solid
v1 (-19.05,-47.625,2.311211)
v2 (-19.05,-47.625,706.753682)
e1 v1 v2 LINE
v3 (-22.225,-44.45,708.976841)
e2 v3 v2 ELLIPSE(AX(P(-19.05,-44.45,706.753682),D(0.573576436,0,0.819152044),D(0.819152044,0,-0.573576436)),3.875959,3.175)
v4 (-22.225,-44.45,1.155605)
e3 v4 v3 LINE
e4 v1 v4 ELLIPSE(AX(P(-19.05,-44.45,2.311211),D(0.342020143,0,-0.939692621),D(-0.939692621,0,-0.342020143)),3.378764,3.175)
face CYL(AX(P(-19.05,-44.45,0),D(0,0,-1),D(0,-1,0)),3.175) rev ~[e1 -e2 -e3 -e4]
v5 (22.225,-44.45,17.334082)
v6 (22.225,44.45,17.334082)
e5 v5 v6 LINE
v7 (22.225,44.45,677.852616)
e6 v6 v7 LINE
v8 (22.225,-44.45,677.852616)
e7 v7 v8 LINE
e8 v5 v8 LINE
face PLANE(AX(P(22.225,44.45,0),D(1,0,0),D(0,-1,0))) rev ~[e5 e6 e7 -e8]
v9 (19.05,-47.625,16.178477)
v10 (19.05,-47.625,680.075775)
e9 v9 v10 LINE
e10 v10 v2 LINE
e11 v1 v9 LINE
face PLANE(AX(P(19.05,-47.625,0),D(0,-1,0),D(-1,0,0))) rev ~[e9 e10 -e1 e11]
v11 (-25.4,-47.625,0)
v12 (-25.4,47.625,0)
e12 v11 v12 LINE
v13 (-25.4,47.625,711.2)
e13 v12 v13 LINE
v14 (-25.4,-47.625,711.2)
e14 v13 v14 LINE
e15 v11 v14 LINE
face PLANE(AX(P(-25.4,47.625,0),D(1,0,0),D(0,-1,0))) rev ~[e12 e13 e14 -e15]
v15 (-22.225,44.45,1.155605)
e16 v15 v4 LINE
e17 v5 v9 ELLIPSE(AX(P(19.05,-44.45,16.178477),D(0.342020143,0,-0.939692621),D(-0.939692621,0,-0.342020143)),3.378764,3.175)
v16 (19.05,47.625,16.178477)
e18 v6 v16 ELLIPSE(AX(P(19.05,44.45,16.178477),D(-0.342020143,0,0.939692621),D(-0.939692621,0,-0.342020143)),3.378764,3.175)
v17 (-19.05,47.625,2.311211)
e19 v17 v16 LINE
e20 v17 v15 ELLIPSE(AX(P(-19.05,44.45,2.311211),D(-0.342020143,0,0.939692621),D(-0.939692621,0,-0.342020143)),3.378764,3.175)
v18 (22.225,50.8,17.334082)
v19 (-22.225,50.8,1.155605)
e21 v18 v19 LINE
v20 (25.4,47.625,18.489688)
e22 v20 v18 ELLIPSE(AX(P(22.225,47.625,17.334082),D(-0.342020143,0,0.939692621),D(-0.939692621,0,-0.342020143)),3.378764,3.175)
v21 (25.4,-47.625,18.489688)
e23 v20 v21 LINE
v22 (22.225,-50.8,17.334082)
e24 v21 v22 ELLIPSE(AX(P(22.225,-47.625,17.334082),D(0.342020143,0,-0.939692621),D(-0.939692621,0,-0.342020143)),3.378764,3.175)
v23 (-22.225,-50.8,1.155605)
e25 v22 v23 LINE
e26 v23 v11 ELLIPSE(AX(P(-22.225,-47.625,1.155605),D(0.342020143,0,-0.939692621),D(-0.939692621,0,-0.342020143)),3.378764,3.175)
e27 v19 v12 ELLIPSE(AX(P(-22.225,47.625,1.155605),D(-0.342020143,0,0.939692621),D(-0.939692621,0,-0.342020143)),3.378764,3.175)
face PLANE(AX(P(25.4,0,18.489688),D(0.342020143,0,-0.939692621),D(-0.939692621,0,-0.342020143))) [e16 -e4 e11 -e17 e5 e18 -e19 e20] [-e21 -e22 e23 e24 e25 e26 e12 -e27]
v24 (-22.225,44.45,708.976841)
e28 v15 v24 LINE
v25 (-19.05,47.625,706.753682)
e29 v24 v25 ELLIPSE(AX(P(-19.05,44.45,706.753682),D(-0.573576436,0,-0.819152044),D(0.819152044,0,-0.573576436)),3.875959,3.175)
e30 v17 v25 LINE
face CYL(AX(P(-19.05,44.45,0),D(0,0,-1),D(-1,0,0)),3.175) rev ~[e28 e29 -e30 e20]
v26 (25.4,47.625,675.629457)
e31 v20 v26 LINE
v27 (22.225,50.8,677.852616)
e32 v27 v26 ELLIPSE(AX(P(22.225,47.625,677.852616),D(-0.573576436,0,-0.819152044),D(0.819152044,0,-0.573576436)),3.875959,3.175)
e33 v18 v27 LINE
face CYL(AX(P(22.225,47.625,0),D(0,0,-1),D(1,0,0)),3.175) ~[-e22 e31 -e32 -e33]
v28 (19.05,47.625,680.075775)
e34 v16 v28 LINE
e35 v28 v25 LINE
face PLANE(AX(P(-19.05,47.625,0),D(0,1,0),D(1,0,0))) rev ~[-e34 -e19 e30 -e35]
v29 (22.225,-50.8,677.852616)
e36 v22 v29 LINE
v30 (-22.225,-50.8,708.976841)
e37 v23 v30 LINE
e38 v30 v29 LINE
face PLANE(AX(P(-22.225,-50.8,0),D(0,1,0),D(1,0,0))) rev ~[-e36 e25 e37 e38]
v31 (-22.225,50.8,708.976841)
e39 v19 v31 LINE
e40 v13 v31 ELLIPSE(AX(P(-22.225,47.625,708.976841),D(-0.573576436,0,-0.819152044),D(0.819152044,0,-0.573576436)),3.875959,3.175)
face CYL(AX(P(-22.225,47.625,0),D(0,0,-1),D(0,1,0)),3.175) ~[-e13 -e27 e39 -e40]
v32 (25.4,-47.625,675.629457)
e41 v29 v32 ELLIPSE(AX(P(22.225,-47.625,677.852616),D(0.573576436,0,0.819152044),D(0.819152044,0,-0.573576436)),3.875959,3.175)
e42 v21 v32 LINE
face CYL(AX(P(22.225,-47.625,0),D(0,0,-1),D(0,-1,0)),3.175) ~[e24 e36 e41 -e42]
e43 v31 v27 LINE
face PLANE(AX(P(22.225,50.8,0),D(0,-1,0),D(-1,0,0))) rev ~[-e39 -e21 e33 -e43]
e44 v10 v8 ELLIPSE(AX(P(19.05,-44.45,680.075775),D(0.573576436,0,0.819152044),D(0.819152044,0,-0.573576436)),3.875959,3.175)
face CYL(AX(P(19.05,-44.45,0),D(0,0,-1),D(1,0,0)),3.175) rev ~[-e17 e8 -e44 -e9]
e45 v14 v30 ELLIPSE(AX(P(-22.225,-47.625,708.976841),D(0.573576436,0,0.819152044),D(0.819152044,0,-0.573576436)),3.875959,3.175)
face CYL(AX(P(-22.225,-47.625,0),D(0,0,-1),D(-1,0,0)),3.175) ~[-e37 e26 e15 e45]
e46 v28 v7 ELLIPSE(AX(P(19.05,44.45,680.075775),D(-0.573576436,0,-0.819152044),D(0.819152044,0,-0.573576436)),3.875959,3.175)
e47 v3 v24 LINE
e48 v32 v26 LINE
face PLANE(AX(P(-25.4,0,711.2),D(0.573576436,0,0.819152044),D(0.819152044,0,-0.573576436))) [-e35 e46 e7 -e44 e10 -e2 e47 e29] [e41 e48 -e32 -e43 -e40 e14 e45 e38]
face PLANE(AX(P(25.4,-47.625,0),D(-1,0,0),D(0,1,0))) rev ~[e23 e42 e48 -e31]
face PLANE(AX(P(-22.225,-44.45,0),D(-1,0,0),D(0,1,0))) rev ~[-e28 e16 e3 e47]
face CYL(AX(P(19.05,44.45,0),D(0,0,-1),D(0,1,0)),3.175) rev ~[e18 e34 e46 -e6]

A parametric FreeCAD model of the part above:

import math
import FreeCAD as App
import Part
import Sketcher
Q = App.Units.Quantity


def add_polygon(sketch, points):
    """Adds a closed chain of lines whose ends are joined by coincident constraints."""
    first, n = sketch.GeometryCount, len(points)
    for a, b in zip(points, points[1:] + points[:1]):
        sketch.addGeometry(Part.LineSegment(App.Vector(*a, 0), App.Vector(*b, 0)), False)
    for i in range(n):
        sketch.addConstraint(Sketcher.Constraint("Coincident", first + i, 2, first + (i + 1) % n, 1))

doc = App.newDocument("Part")
body = doc.addObject("PartDesign::Body", "Body")

# Sketch on XY plane
sketch1 = body.newObject("Sketcher::SketchObject", "Sketch")
sketch1.AttachmentSupport = (doc.getObject("XY_Plane"), [""])
sketch1.MapMode = "FlatFace"
sketch1.addGeometry([
    Part.LineSegment(App.Vector(-22.225, -50.8, 0), App.Vector(22.225, -50.8, 0)),  # 0
    Part.ArcOfCircle(Part.Circle(App.Vector(22.225, -47.625, 0), App.Vector(0, 0, 1), 3.175), math.radians(-90), math.radians(0)),  # 1
    Part.LineSegment(App.Vector(25.4, -47.625, 0), App.Vector(25.4, 47.625, 0)),  # 2
    Part.ArcOfCircle(Part.Circle(App.Vector(22.225, 47.625, 0), App.Vector(0, 0, 1), 3.175), math.radians(0), math.radians(90)),  # 3
    Part.LineSegment(App.Vector(22.225, 50.8, 0), App.Vector(-22.225, 50.8, 0)),  # 4
    Part.ArcOfCircle(Part.Circle(App.Vector(-22.225, 47.625, 0), App.Vector(0, 0, 1), 3.175), math.radians(90), math.radians(180)),  # 5
    Part.LineSegment(App.Vector(-25.4, 47.625, 0), App.Vector(-25.4, -47.625, 0)),  # 6
    Part.ArcOfCircle(Part.Circle(App.Vector(-22.225, -47.625, 0), App.Vector(0, 0, 1), 3.175), math.radians(180), math.radians(270)),  # 7
    Part.LineSegment(App.Vector(22.225, 44.45, 0), App.Vector(22.225, -44.45, 0)),  # 8
    Part.ArcOfCircle(Part.Circle(App.Vector(19.05, -44.45, 0), App.Vector(0, 0, 1), 3.175), math.radians(-90), math.radians(0)),  # 9
    Part.LineSegment(App.Vector(19.05, -47.625, 0), App.Vector(-19.05, -47.625, 0)),  # 10
    Part.ArcOfCircle(Part.Circle(App.Vector(-19.05, -44.45, 0), App.Vector(0, 0, 1), 3.175), math.radians(180), math.radians(270)),  # 11
    Part.LineSegment(App.Vector(-22.225, -44.45, 0), App.Vector(-22.225, 44.45, 0)),  # 12
    Part.ArcOfCircle(Part.Circle(App.Vector(-19.05, 44.45, 0), App.Vector(0, 0, 1), 3.175), math.radians(90), math.radians(180)),  # 13
    Part.LineSegment(App.Vector(-19.05, 47.625, 0), App.Vector(19.05, 47.625, 0)),  # 14
    Part.ArcOfCircle(Part.Circle(App.Vector(19.05, 44.45, 0), App.Vector(0, 0, 1), 3.175), math.radians(0), math.radians(90)),  # 15
], False)
sketch1.addConstraint([
    Sketcher.Constraint("Tangent", 0, 2, 1, 1),
    Sketcher.Constraint("Tangent", 1, 2, 2, 1),
    Sketcher.Constraint("Tangent", 2, 2, 3, 1),
    Sketcher.Constraint("Tangent", 3, 2, 4, 1),
    Sketcher.Constraint("Tangent", 4, 2, 5, 1),
    Sketcher.Constraint("Tangent", 5, 2, 6, 1),
    Sketcher.Constraint("Tangent", 6, 2, 7, 1),
    Sketcher.Constraint("Tangent", 7, 2, 0, 1),
    Sketcher.Constraint("Tangent", 8, 2, 9, 2),
    Sketcher.Constraint("Tangent", 9, 1, 10, 1),
    Sketcher.Constraint("Tangent", 10, 2, 11, 2),
    Sketcher.Constraint("Tangent", 11, 1, 12, 1),
    Sketcher.Constraint("Tangent", 12, 2, 13, 2),
    Sketcher.Constraint("Tangent", 13, 1, 14, 1),
    Sketcher.Constraint("Tangent", 14, 2, 15, 2),
    Sketcher.Constraint("Tangent", 15, 1, 8, 1),
    Sketcher.Constraint("Horizontal", 0),
    Sketcher.Constraint("Vertical", 2),
    Sketcher.Constraint("Horizontal", 4),
    Sketcher.Constraint("Vertical", 6),
    Sketcher.Constraint("Vertical", 8),
    Sketcher.Constraint("Horizontal", 10),
    Sketcher.Constraint("Vertical", 12),
    Sketcher.Constraint("Horizontal", 14),
    Sketcher.Constraint("Equal", 1, 3),
    Sketcher.Constraint("Equal", 3, 5),
    Sketcher.Constraint("Equal", 5, 7),
    Sketcher.Constraint("Equal", 7, 9),
    Sketcher.Constraint("Equal", 9, 11),
    Sketcher.Constraint("Equal", 11, 13),
    Sketcher.Constraint("Equal", 13, 15),
    Sketcher.Constraint("Symmetric", 1, 3, 5, 3, -1, 1),
    Sketcher.Constraint("Symmetric", 9, 3, 13, 3, -1, 1),
    Sketcher.Constraint("Horizontal", 6, 2, 9, 1),
    Sketcher.Constraint("Vertical", 3, 2, 8, 2),
    Sketcher.Constraint("DistanceX", 10, 2, 10, 1, Q("1.5 in")),
    Sketcher.Constraint("DistanceY", 8, 2, 8, 1, Q("3.5 in")),
    Sketcher.Constraint("DistanceY", 0, 2, -1, 1, Q("2 in")),
])
pad1 = body.newObject("PartDesign::Pad", "Pad")
pad1.Profile = sketch1
pad1.Length = Q("28 in")

# Sketch on XZ plane
sketch2 = body.newObject("Sketcher::SketchObject", "Sketch001")
sketch2.AttachmentSupport = (doc.getObject("XZ_Plane"), [""])
sketch2.MapMode = "FlatFace"
add_polygon(sketch2, [(25.4, 18.489688), (-25.4, 0), (25.4, 0)])  # lines 0-2
sketch2.addConstraint([
    Sketcher.Constraint("Horizontal", 1),
    Sketcher.Constraint("Vertical", 2),
    Sketcher.Constraint("Symmetric", 0, 2, 1, 2, -1, 1),
    Sketcher.Constraint("DistanceX", 1, 1, 1, 2, Q("2 in")),
    Sketcher.Constraint("Angle", 0, Q("-160 deg")),
])
pocket1 = body.newObject("PartDesign::Pocket", "Pocket")
pocket1.Profile = sketch2
pocket1.Type = "ThroughAll"
pocket1.Midplane = True

# Sketch on XZ plane
sketch3 = body.newObject("Sketcher::SketchObject", "Sketch002")
sketch3.AttachmentSupport = (doc.getObject("XZ_Plane"), [""])
sketch3.MapMode = "FlatFace"
add_polygon(sketch3, [(25.4, 711.2), (-25.4, 711.2), (25.4, 675.629457)])  # lines 0-2
sketch3.addConstraint([
    Sketcher.Constraint("Horizontal", 0),
    Sketcher.Constraint("Vertical", 2),
    Sketcher.Constraint("DistanceX", 0, 2, 0, 1, Q("2 in")),
    Sketcher.Constraint("DistanceX", 0, 2, -1, 1, Q("1 in")),
    Sketcher.Constraint("DistanceY", -1, 1, 0, 2, Q("28 in")),
    Sketcher.Constraint("Angle", 1, Q("-35 deg")),
])
pocket2 = body.newObject("PartDesign::Pocket", "Pocket001")
pocket2.Profile = sketch3
pocket2.Type = "ThroughAll"
pocket2.Midplane = True

doc.recompute()
